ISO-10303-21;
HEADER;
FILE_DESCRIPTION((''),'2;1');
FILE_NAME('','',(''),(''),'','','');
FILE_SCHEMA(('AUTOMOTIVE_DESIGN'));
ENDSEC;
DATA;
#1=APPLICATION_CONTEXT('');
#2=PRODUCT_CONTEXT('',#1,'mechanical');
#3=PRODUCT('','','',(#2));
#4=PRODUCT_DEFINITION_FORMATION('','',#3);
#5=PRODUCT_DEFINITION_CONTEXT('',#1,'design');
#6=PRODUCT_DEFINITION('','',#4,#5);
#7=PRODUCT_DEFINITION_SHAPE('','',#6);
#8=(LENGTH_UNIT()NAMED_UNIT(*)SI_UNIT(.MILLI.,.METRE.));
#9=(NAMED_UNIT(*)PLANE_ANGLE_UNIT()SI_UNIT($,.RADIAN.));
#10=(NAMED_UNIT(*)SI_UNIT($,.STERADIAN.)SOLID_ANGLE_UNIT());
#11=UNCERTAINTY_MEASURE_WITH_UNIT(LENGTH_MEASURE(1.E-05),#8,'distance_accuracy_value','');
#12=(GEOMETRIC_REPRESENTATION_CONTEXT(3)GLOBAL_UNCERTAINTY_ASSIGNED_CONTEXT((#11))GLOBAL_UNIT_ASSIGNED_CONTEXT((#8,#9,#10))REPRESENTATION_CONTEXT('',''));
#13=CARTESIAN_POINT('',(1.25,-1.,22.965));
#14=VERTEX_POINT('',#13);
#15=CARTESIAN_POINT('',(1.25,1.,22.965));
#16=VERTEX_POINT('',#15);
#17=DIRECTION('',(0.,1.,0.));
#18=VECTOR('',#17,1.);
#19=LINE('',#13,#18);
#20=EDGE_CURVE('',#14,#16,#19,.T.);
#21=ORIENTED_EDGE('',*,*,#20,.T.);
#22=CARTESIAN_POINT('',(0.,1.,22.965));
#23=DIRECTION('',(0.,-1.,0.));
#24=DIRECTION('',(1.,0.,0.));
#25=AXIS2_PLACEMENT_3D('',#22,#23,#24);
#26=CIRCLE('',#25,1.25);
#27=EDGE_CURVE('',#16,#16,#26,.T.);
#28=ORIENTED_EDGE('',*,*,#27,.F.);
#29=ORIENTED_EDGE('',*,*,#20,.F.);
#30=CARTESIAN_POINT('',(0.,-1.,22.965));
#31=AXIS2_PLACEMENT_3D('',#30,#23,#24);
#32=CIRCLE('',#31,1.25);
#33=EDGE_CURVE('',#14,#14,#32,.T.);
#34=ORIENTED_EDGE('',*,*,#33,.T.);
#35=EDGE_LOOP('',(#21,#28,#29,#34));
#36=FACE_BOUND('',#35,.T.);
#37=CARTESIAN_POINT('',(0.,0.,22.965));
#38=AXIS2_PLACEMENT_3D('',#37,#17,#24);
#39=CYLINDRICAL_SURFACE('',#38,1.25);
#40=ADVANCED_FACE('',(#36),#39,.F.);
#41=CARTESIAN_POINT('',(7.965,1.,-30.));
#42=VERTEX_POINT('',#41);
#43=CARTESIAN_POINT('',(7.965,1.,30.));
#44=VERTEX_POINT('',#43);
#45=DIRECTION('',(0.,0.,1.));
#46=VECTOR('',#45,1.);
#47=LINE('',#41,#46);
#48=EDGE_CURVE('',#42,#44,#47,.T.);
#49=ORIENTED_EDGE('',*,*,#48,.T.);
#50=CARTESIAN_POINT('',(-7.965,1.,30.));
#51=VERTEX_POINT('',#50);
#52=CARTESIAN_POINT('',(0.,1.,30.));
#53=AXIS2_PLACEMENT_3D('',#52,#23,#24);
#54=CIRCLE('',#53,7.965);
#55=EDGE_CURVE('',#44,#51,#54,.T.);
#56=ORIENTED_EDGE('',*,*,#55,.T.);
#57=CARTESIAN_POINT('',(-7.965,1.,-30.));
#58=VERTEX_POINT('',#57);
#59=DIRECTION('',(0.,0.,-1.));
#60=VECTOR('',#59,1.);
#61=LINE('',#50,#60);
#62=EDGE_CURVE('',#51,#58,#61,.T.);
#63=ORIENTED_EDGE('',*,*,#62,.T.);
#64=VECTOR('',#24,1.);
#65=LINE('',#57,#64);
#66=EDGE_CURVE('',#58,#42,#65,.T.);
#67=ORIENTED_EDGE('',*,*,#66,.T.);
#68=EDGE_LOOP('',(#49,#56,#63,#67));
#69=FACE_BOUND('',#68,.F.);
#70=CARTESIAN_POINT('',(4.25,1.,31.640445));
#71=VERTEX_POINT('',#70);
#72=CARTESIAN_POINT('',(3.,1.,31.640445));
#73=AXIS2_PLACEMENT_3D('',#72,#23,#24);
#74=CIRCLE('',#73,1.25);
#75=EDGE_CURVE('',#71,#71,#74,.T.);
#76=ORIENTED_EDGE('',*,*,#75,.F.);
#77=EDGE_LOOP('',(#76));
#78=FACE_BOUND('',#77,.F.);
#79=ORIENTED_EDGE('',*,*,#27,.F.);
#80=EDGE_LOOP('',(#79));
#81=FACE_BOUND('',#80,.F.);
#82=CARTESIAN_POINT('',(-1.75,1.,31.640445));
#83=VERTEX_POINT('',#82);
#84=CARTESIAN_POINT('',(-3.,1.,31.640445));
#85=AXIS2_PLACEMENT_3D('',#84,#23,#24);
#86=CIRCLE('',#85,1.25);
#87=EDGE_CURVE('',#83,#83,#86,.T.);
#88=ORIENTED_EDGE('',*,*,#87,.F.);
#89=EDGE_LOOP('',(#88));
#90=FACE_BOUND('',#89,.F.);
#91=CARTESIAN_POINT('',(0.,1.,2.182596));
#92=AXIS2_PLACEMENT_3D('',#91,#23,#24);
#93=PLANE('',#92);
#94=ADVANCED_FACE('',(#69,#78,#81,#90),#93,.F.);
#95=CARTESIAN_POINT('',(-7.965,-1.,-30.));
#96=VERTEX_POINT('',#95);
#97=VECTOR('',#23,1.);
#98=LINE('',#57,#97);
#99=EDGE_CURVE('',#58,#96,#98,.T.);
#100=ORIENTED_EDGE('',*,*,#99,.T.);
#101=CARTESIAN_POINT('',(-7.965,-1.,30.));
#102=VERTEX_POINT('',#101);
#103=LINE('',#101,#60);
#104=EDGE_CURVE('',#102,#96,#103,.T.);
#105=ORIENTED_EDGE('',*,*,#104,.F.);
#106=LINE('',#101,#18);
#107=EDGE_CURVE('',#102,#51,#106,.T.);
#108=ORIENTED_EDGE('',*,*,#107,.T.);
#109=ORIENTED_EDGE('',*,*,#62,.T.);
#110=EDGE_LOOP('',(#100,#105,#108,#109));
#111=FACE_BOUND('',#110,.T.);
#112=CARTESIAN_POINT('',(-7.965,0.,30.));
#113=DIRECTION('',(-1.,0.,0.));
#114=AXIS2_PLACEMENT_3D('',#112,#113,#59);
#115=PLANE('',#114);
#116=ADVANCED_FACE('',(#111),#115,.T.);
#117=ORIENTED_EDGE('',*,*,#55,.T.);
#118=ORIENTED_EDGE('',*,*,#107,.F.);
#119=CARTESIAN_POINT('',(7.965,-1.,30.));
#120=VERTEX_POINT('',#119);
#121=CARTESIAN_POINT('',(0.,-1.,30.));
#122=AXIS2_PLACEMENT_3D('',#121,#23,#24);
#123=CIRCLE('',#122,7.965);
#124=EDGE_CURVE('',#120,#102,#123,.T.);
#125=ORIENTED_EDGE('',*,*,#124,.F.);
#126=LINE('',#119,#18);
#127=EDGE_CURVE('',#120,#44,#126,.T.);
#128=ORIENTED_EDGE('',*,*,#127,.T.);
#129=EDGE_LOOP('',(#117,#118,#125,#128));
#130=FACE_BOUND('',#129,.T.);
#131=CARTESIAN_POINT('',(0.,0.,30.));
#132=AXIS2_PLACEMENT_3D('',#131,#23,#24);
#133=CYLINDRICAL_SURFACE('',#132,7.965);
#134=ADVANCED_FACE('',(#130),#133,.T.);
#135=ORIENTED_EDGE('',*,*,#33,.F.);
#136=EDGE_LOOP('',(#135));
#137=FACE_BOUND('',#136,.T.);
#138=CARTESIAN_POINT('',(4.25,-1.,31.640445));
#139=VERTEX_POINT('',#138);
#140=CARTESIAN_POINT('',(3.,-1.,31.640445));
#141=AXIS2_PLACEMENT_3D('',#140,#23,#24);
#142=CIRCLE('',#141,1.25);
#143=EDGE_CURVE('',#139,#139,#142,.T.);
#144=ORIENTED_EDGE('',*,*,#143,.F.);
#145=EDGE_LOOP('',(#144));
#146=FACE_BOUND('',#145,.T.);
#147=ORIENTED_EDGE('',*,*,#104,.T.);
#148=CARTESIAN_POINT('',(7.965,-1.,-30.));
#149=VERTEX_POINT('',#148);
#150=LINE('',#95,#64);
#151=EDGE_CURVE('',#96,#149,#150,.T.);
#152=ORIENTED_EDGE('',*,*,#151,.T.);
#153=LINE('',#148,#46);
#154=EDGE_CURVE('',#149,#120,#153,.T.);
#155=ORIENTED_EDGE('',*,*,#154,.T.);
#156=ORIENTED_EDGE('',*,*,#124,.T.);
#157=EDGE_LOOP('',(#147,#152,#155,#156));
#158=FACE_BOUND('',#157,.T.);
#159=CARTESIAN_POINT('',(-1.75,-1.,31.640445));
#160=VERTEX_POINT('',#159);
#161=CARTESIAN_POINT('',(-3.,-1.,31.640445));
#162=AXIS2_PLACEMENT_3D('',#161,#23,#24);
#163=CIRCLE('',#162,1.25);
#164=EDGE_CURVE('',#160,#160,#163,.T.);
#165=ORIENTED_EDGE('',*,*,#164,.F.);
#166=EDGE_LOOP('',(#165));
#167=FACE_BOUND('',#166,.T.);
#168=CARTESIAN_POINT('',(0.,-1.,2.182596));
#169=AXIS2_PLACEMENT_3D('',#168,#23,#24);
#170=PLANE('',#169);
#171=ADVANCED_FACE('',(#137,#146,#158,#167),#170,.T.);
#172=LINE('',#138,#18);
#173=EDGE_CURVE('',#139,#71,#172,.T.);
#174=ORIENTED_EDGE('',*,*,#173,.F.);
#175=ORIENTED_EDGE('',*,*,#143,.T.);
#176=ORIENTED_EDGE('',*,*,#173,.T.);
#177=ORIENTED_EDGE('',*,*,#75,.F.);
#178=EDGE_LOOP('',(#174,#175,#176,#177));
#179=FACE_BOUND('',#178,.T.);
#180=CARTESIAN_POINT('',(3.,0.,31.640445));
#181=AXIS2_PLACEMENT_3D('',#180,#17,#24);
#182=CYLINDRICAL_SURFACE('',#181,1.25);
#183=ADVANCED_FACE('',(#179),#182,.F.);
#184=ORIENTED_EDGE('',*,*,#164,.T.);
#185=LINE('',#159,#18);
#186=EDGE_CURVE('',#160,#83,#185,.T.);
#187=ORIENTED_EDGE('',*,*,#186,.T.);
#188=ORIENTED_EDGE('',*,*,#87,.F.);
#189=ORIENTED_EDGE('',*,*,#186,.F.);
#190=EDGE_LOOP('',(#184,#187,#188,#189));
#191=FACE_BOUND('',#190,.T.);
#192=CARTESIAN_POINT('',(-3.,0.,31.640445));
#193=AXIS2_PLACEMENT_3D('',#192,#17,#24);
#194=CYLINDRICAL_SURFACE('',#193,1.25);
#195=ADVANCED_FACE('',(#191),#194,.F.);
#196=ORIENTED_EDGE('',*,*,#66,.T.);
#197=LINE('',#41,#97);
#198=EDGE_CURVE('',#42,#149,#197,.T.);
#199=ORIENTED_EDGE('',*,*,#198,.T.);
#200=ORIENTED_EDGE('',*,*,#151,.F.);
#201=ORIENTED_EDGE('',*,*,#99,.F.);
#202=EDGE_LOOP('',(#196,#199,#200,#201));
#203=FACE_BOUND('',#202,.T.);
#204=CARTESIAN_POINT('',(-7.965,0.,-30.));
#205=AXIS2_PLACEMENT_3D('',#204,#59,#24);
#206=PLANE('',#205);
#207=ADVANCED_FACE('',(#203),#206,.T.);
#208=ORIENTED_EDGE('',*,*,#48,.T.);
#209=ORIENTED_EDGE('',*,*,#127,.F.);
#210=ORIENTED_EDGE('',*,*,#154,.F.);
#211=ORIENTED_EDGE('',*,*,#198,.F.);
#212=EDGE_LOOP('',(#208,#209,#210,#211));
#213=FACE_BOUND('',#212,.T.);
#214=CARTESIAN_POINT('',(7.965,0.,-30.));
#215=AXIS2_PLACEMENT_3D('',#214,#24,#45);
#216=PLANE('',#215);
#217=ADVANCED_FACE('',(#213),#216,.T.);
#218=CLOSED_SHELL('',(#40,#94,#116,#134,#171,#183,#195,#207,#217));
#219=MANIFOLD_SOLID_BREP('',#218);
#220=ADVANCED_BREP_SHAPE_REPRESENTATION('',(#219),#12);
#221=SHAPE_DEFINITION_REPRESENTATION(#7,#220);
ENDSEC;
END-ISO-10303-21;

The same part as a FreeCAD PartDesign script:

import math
import FreeCAD as App
import Part
import Sketcher
Q = App.Units.Quantity

doc = App.newDocument("Part")
params = doc.addObject("Spreadsheet::Sheet", "Params")
for row, (alias, value) in enumerate([
    ("sketch1_diameter", "2.5 mm"),
    ("sketch1_height", "60 mm"),
    ("pad1_length", "2 mm"),
], start=1):
    params.set(f"A{row}", alias)
    params.set(f"B{row}", "=" + value)
    params.setAlias(f"B{row}", alias)

body = doc.addObject("PartDesign::Body", "Body")

# Sketch on XZ plane
sketch1 = doc.addObject("Sketcher::SketchObject", "Sketch")
body.addObject(sketch1)
sketch1.AttachmentSupport = (doc.XZ_Plane, [""])
sketch1.MapMode = "FlatFace"
sketch1.addGeometry([
    Part.LineSegment(App.Vector(-8, 30, 0), App.Vector(-8, -30, 0)),  # 0
    Part.LineSegment(App.Vector(-8, -30, 0), App.Vector(8, -30, 0)),  # 1
    Part.LineSegment(App.Vector(8, -30, 0), App.Vector(8, 30, 0)),  # 2
    Part.ArcOfCircle(Part.Circle(App.Vector(0, 30, 0), App.Vector(0, 0, 1), 8), math.radians(0), math.radians(180)),  # 3
    Part.Circle(App.Vector(0, 23, 0), App.Vector(0, 0, 1), 1.2),  # 4
    Part.Circle(App.Vector(-3, 31.6, 0), App.Vector(0, 0, 1), 1.2),  # 5
    Part.Circle(App.Vector(3, 31.6, 0), App.Vector(0, 0, 1), 1.2),  # 6
], False)
sketch1.addConstraint([
    Sketcher.Constraint("Coincident", 0, 2, 1, 1),
    Sketcher.Constraint("Coincident", 1, 2, 2, 1),
    Sketcher.Constraint("Tangent", 2, 2, 3, 1),
    Sketcher.Constraint("Tangent", 3, 2, 0, 1),
    Sketcher.Constraint("Vertical", 0),
    Sketcher.Constraint("Horizontal", 1),
    Sketcher.Constraint("Vertical", 2),
    Sketcher.Constraint("Equal", 4, 5),
    Sketcher.Constraint("Equal", 5, 6),
    Sketcher.Constraint("Symmetric", 0, 2, 2, 2, -1, 1),
    Sketcher.Constraint("Symmetric", 5, 3, 6, 3, -2),
    Sketcher.Constraint("PointOnObject", 4, 3, -2),
    Sketcher.Constraint("Diameter", 4, Q("2.5 mm")),
    Sketcher.Constraint("DistanceY", 0, 2, 0, 1, Q("60 mm")),
    Sketcher.Constraint("DistanceX", 5, 3, -1, 1, Q("3 mm")),
    Sketcher.Constraint("Radius", 3, Q("7.965 mm")),
    Sketcher.Constraint("DistanceY", -1, 1, 4, 3, Q("22.965 mm")),
    Sketcher.Constraint("DistanceY", -1, 1, 5, 3, Q("31.640445 mm")),
])
sketch1.setExpression("Constraints[12]", "Params.sketch1_diameter")
sketch1.setExpression("Constraints[13]", "Params.sketch1_height")
pad1 = doc.addObject("PartDesign::Pad", "Pad")
body.addObject(pad1)
pad1.Profile = sketch1
pad1.setExpression("Length", "Params.pad1_length")
pad1.Midplane = True

doc.recompute()
